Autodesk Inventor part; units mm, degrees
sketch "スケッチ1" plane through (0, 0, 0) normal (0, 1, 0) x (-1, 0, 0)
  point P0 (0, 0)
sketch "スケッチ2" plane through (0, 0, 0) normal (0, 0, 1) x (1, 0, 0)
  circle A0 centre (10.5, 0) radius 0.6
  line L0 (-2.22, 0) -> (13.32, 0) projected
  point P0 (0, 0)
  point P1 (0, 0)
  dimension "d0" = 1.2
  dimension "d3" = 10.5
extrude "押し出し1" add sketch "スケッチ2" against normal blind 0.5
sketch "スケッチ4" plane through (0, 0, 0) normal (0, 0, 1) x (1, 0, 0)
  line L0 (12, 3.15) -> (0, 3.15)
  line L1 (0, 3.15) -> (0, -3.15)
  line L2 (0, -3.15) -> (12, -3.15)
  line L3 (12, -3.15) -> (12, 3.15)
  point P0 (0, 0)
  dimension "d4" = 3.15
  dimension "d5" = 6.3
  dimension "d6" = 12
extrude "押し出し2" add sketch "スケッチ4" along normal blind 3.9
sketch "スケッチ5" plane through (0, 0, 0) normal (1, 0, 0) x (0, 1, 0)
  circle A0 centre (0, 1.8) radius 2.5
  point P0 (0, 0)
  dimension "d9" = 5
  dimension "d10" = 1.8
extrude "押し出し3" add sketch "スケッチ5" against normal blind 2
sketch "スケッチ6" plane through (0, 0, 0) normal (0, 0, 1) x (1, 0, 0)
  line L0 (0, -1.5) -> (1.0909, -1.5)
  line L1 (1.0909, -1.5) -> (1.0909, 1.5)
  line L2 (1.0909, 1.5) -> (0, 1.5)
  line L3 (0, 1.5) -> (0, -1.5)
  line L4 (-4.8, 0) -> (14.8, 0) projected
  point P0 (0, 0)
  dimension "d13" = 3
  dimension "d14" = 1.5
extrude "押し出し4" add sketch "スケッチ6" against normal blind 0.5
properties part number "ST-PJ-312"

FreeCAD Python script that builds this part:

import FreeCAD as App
import Part
import Sketcher
from FreeCAD import Vector
Q = App.Units.Quantity

doc = App.newDocument("Part")
body = doc.addObject("PartDesign::Body", "Body")

# Sketch on XY plane
sketch1 = doc.addObject("Sketcher::SketchObject", "Sketch")
body.addObject(sketch1)
sketch1.AttachmentSupport = (doc.XY_Plane, [""])
sketch1.MapMode = "FlatFace"
sketch1.addGeometry(Part.Circle(Vector(10.5, 0, 0), Vector(0, 0, 1), 0.6), False)
sketch1.addConstraint([
    Sketcher.Constraint("PointOnObject", 0, 3, -1),
    Sketcher.Constraint("Diameter", 0, Q("1.2 mm")),
    Sketcher.Constraint("DistanceX", -1, 1, 0, 3, Q("10.5 mm")),
])
pad1 = doc.addObject("PartDesign::Pad", "Pad")
body.addObject(pad1)
pad1.Profile = sketch1
pad1.Length = 0.5
pad1.Reversed = True

# Sketch on XY plane
sketch2 = doc.addObject("Sketcher::SketchObject", "Sketch001")
body.addObject(sketch2)
sketch2.AttachmentSupport = (doc.XY_Plane, [""])
sketch2.MapMode = "FlatFace"
sketch2.addGeometry([
    Part.LineSegment(Vector(12, -3, 0), Vector(12, 3, 0)),
    Part.LineSegment(Vector(12, 3, 0), Vector(0, 3, 0)),
    Part.LineSegment(Vector(0, 3, 0), Vector(0, -3, 0)),
    Part.LineSegment(Vector(0, -3, 0), Vector(12, -3, 0)),
], False)
sketch2.addConstraint([
    Sketcher.Constraint("Coincident", 0, 2, 1, 1),
    Sketcher.Constraint("Coincident", 1, 2, 2, 1),
    Sketcher.Constraint("Coincident", 2, 2, 3, 1),
    Sketcher.Constraint("Coincident", 3, 2, 0, 1),
    Sketcher.Constraint("Vertical", 0),
    Sketcher.Constraint("Horizontal", 1),
    Sketcher.Constraint("Vertical", 2),
    Sketcher.Constraint("Horizontal", 3),
    Sketcher.Constraint("Symmetric", 1, 2, 2, 2, -1, 1),
    Sketcher.Constraint("DistanceX", 1, 2, 1, 1, Q("12 mm")),
    Sketcher.Constraint("DistanceY", 0, 1, 0, 2, Q("6.3 mm")),
])
pad2 = doc.addObject("PartDesign::Pad", "Pad001")
body.addObject(pad2)
pad2.Profile = sketch2
pad2.Length = 3.9

# Sketch on YZ plane
sketch3 = doc.addObject("Sketcher::SketchObject", "Sketch002")
body.addObject(sketch3)
sketch3.AttachmentSupport = (doc.YZ_Plane, [""])
sketch3.MapMode = "FlatFace"
sketch3.addGeometry(Part.Circle(Vector(0, 1.8, 0), Vector(0, 0, 1), 2.5), False)
sketch3.addConstraint([
    Sketcher.Constraint("PointOnObject", 0, 3, -2),
    Sketcher.Constraint("Diameter", 0, Q("5 mm")),
    Sketcher.Constraint("DistanceY", -1, 1, 0, 3, Q("1.8 mm")),
])
pad3 = doc.addObject("PartDesign::Pad", "Pad002")
body.addObject(pad3)
pad3.Profile = sketch3
pad3.Length = 2
pad3.Reversed = True

# Sketch on XY plane
sketch4 = doc.addObject("Sketcher::SketchObject", "Sketch003")
body.addObject(sketch4)
sketch4.AttachmentSupport = (doc.XY_Plane, [""])
sketch4.MapMode = "FlatFace"
sketch4.addGeometry([
    Part.LineSegment(Vector(0, -1.5, 0), Vector(1.1, -1.5, 0)),
    Part.LineSegment(Vector(1.1, -1.5, 0), Vector(1.1, 1.5, 0)),
    Part.LineSegment(Vector(1.1, 1.5, 0), Vector(0, 1.5, 0)),
    Part.LineSegment(Vector(0, 1.5, 0), Vector(0, -1.5, 0)),
], False)
sketch4.addConstraint([
    Sketcher.Constraint("Coincident", 0, 2, 1, 1),
    Sketcher.Constraint("Coincident", 1, 2, 2, 1),
    Sketcher.Constraint("Coincident", 2, 2, 3, 1),
    Sketcher.Constraint("Coincident", 3, 2, 0, 1),
    Sketcher.Constraint("Horizontal", 0),
    Sketcher.Constraint("Vertical", 1),
    Sketcher.Constraint("Horizontal", 2),
    Sketcher.Constraint("Vertical", 3),
    Sketcher.Constraint("Symmetric", 2, 2, 3, 2, -1, 1),
    Sketcher.Constraint("DistanceY", 1, 1, 1, 2, Q("3 mm")),
    Sketcher.Constraint("DistanceX", 0, 1, 0, 2, Q("1.091 mm")),
])
pad4 = doc.addObject("PartDesign::Pad", "Pad003")
body.addObject(pad4)
pad4.Profile = sketch4
pad4.Length = 0.5
pad4.Reversed = True

doc.recompute()
